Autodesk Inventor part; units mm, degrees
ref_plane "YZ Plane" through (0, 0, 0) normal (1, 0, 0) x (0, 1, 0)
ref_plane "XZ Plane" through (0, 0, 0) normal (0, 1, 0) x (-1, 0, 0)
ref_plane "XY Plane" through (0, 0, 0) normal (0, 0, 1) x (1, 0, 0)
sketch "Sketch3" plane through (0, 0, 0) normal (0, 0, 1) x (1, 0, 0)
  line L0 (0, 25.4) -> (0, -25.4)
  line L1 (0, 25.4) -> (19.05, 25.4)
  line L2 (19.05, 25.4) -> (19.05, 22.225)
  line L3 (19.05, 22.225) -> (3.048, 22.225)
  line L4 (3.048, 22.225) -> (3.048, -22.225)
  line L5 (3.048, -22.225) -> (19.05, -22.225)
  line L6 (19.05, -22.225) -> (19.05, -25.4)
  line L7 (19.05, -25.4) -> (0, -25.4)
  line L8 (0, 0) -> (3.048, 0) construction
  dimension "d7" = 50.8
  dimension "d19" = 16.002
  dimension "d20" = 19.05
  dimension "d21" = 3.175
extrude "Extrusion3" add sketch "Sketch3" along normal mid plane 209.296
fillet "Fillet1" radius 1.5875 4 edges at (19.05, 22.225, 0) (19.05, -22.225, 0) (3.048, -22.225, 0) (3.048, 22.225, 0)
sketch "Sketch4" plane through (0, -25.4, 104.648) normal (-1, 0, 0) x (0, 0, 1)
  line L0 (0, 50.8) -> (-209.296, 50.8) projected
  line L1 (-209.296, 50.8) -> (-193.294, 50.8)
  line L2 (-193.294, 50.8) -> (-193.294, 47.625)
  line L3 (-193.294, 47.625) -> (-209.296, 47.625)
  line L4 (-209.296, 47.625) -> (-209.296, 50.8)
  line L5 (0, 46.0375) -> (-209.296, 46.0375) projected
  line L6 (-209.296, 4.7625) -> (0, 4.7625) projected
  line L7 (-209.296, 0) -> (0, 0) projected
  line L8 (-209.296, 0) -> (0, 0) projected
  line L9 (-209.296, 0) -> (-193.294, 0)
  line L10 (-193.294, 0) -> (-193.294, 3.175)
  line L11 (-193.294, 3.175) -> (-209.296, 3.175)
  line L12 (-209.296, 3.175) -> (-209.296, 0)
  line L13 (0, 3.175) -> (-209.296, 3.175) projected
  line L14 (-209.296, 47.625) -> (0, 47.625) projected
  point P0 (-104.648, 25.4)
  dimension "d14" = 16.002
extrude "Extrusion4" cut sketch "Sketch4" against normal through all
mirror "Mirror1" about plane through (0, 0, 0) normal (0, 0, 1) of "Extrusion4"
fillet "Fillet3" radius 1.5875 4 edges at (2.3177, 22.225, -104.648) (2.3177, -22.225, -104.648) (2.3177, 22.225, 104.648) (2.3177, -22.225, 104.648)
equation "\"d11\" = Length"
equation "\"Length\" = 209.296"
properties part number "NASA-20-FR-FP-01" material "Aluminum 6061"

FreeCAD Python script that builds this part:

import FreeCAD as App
import Part
import Sketcher

V = App.Vector
Q = App.Units.Quantity


def edges_at(feature, points):
    """Names of the edges that pass closest to the given points."""
    edges = feature.Shape.Edges
    near = lambda p: min(range(len(edges)), key=lambda i: edges[i].distToShape(Part.Vertex(*p))[0])
    return sorted({f"Edge{near(p) + 1}" for p in points})

doc = App.newDocument("Part")
body = doc.addObject("PartDesign::Body", "Body")

# Sketch on XY plane
sketch1 = body.newObject("Sketcher::SketchObject", "Sketch")
sketch1.AttachmentSupport = (doc.getObject("XY_Plane"), [""])
sketch1.MapMode = "FlatFace"
sketch1.addGeometry([
    Part.LineSegment(V(19.1, 25.4, 0), V(0, 25.4, 0)),  # 0
    Part.LineSegment(V(0, 25.4, 0), V(0, -25.4, 0)),  # 1
    Part.LineSegment(V(0, -25.4, 0), V(19.1, -25.4, 0)),  # 2
    Part.LineSegment(V(19.1, -25.4, 0), V(19.1, -22.2, 0)),  # 3
    Part.LineSegment(V(19.1, -22.2, 0), V(3, -22.2, 0)),  # 4
    Part.LineSegment(V(3, -22.2, 0), V(3, 22.2, 0)),  # 5
    Part.LineSegment(V(3, 22.2, 0), V(19.1, 22.2, 0)),  # 6
    Part.LineSegment(V(19.1, 22.2, 0), V(19.1, 25.4, 0)),  # 7
], False)
sketch1.addConstraint([
    Sketcher.Constraint("Coincident", 0, 2, 1, 1),
    Sketcher.Constraint("Coincident", 1, 2, 2, 1),
    Sketcher.Constraint("Coincident", 2, 2, 3, 1),
    Sketcher.Constraint("Coincident", 3, 2, 4, 1),
    Sketcher.Constraint("Coincident", 4, 2, 5, 1),
    Sketcher.Constraint("Coincident", 5, 2, 6, 1),
    Sketcher.Constraint("Coincident", 6, 2, 7, 1),
    Sketcher.Constraint("Coincident", 7, 2, 0, 1),
    Sketcher.Constraint("Horizontal", 0),
    Sketcher.Constraint("Vertical", 1),
    Sketcher.Constraint("Horizontal", 2),
    Sketcher.Constraint("Vertical", 3),
    Sketcher.Constraint("Horizontal", 4),
    Sketcher.Constraint("Vertical", 5),
    Sketcher.Constraint("Horizontal", 6),
    Sketcher.Constraint("Vertical", 7),
    Sketcher.Constraint("Symmetric", 0, 2, 1, 2, -1, 1),
    Sketcher.Constraint("Symmetric", 3, 2, 6, 2, -1),
    Sketcher.Constraint("DistanceY", 1, 2, 1, 1, Q("2 in")),
    Sketcher.Constraint("DistanceX", 0, 2, 0, 1, Q("0.75 in")),
    Sketcher.Constraint("DistanceX", 4, 2, 4, 1, Q("0.63 in")),
    Sketcher.Constraint("DistanceY", 3, 1, 3, 2, Q("0.125 in")),
])
pad1 = body.newObject("PartDesign::Pad", "Pad")
pad1.Profile = sketch1
pad1.Length = Q("8.24 in")
pad1.Midplane = True
doc.recompute()

fillet = body.newObject("PartDesign::Fillet", "Fillet")
fillet.Base = (pad1, edges_at(pad1, [
    (19.05, 22.225, 0),
    (19.05, -22.225, 0),
    (3.048, -22.225, 0),
    (3.048, 22.225, 0),
]))
fillet.Radius = Q("0.0625 in")

# Sketch on YZ plane
sketch2 = body.newObject("Sketcher::SketchObject", "Sketch001")
sketch2.AttachmentSupport = (doc.getObject("YZ_Plane"), [""])
sketch2.MapMode = "FlatFace"
sketch2.addGeometry([
    Part.LineSegment(V(22.2, -88.6, 0), V(25.4, -88.6, 0)),  # 0
    Part.LineSegment(V(25.4, -88.6, 0), V(25.4, -104.6, 0)),  # 1
    Part.LineSegment(V(25.4, -104.6, 0), V(22.2, -104.6, 0)),  # 2
    Part.LineSegment(V(22.2, -104.6, 0), V(22.2, -88.6, 0)),  # 3
    Part.LineSegment(V(-22.2, -104.6, 0), V(-25.4, -104.6, 0)),  # 4
    Part.LineSegment(V(-25.4, -104.6, 0), V(-25.4, -88.6, 0)),  # 5
    Part.LineSegment(V(-25.4, -88.6, 0), V(-22.2, -88.6, 0)),  # 6
    Part.LineSegment(V(-22.2, -88.6, 0), V(-22.2, -104.6, 0)),  # 7
], False)
sketch2.addConstraint([
    Sketcher.Constraint("Coincident", 0, 2, 1, 1),
    Sketcher.Constraint("Coincident", 1, 2, 2, 1),
    Sketcher.Constraint("Coincident", 2, 2, 3, 1),
    Sketcher.Constraint("Coincident", 3, 2, 0, 1),
    Sketcher.Constraint("Coincident", 4, 2, 5, 1),
    Sketcher.Constraint("Coincident", 5, 2, 6, 1),
    Sketcher.Constraint("Coincident", 6, 2, 7, 1),
    Sketcher.Constraint("Coincident", 7, 2, 4, 1),
    Sketcher.Constraint("Horizontal", 0),
    Sketcher.Constraint("Vertical", 1),
    Sketcher.Constraint("Horizontal", 2),
    Sketcher.Constraint("Vertical", 3),
    Sketcher.Constraint("Horizontal", 4),
    Sketcher.Constraint("Vertical", 5),
    Sketcher.Constraint("Horizontal", 6),
    Sketcher.Constraint("Vertical", 7),
    Sketcher.Constraint("Symmetric", 1, 2, 4, 2, -2),
    Sketcher.Constraint("Symmetric", 3, 2, 6, 2, -2),
    Sketcher.Constraint("DistanceY", 1, 2, 1, 1, Q("0.63 in")),
    Sketcher.Constraint("DistanceX", -1, 1, 0, 2, Q("1 in")),
    Sketcher.Constraint("DistanceX", 0, 1, 0, 2, Q("0.125 in")),
    Sketcher.Constraint("DistanceY", 0, 2, -1, 1, Q("3.49 in")),
])
pocket1 = body.newObject("PartDesign::Pocket", "Pocket")
pocket1.Profile = sketch2
pocket1.Type = "ThroughAll"
pocket1.Reversed = True
doc.recompute()

mirrored = body.newObject("PartDesign::Mirrored", "Mirrored")
mirrored.Originals = [pocket1]
mirrored.MirrorPlane = (doc.getObject("XY_Plane"), [""])
body.Tip = mirrored
doc.recompute()

fillet2 = body.newObject("PartDesign::Fillet", "Fillet001")
fillet2.Base = (mirrored, edges_at(mirrored, [
    (2.318, 22.225, -104.648),
    (2.318, -22.225, -104.648),
    (2.318, 22.225, 104.648),
    (2.318, -22.225, 104.648),
]))
fillet2.Radius = Q("0.0625 in")

doc.recompute()
